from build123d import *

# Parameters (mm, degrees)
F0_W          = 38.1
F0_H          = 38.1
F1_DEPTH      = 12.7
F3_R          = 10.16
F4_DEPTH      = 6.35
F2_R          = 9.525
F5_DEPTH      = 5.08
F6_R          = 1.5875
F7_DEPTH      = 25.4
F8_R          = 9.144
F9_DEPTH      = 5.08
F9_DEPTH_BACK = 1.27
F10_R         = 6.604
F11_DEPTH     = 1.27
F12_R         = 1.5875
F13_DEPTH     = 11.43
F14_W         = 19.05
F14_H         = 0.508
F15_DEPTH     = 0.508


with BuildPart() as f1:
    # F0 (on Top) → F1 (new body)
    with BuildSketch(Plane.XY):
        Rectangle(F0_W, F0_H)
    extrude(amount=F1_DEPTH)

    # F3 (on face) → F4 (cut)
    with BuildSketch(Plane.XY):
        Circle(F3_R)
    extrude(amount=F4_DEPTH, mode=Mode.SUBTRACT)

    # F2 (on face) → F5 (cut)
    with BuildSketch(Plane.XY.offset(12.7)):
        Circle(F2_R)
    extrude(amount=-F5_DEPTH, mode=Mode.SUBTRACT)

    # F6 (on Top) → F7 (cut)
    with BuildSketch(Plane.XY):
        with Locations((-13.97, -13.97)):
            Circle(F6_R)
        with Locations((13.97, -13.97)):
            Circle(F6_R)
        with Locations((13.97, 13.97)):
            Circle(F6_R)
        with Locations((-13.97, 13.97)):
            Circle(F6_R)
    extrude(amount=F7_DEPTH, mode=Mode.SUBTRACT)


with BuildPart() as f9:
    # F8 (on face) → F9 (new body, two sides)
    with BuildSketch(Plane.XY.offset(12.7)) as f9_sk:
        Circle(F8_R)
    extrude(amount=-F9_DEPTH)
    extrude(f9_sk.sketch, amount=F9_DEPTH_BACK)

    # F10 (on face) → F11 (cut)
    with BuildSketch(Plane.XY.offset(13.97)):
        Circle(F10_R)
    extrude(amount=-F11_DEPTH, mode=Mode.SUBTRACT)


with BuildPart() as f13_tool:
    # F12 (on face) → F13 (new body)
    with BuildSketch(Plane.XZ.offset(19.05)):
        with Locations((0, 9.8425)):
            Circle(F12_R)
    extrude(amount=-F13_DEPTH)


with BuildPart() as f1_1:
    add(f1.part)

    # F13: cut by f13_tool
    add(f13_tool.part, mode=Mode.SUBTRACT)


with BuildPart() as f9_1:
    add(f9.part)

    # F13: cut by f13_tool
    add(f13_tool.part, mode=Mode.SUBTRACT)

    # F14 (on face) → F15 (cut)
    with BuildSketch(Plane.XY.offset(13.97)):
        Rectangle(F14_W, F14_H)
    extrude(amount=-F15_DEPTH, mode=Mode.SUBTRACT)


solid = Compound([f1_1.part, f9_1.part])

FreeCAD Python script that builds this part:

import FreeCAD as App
import Part
import Sketcher

V = App.Vector
Q = App.Units.Quantity

doc = App.newDocument("Part")
body = doc.addObject("PartDesign::Body", "Body")

# Sketch on XY plane
sketch1 = doc.addObject("Sketcher::SketchObject", "Sketch")
body.addObject(sketch1)
sketch1.AttachmentSupport = (doc.XY_Plane, [""])
sketch1.MapMode = "FlatFace"
sketch1.addGeometry(Part.LineSegment(V(-19, 19, 0), V(-19, -19, 0)), False)
sketch1.addGeometry(Part.LineSegment(V(-19, -19, 0), V(19, -19, 0)), False)
sketch1.addGeometry(Part.LineSegment(V(19, -19, 0), V(19, 19, 0)), False)
sketch1.addGeometry(Part.LineSegment(V(19, 19, 0), V(-19, 19, 0)), False)
sketch1.addConstraint(Sketcher.Constraint("Coincident", 0, 2, 1, 1))
sketch1.addConstraint(Sketcher.Constraint("Coincident", 1, 2, 2, 1))
sketch1.addConstraint(Sketcher.Constraint("Coincident", 2, 2, 3, 1))
sketch1.addConstraint(Sketcher.Constraint("Coincident", 3, 2, 0, 1))
sketch1.addConstraint(Sketcher.Constraint("Vertical", 0))
sketch1.addConstraint(Sketcher.Constraint("Horizontal", 1))
sketch1.addConstraint(Sketcher.Constraint("Vertical", 2))
sketch1.addConstraint(Sketcher.Constraint("Horizontal", 3))
sketch1.addConstraint(Sketcher.Constraint("Symmetric", 0, 2, 2, 2, -1, 1))
sketch1.addConstraint(Sketcher.Constraint("Equal", 3, 0))
sketch1.addConstraint(Sketcher.Constraint("DistanceX", 1, 1, 1, 2, Q("1.5 in")))
pad1 = doc.addObject("PartDesign::Pad", "Pad")
body.addObject(pad1)
pad1.Profile = sketch1
pad1.Length = Q("0.5 in")

# Sketch on XY plane
sketch2 = doc.addObject("Sketcher::SketchObject", "Sketch001")
body.addObject(sketch2)
sketch2.AttachmentSupport = (doc.XY_Plane, [""])
sketch2.MapMode = "FlatFace"
sketch2.addGeometry(Part.Circle(V(0, 0, 0), V(0, 0, 1), 10), False)
sketch2.addConstraint(Sketcher.Constraint("Coincident", 0, 3, -1, 1))
sketch2.addConstraint(Sketcher.Constraint("Diameter", 0, Q("0.8 in")))
pocket1 = doc.addObject("PartDesign::Pocket", "Pocket")
body.addObject(pocket1)
pocket1.Profile = sketch2
pocket1.Length = Q("0.25 in")
pocket1.Reversed = True

# Sketch on XY plane
sketch3 = doc.addObject("Sketcher::SketchObject", "Sketch002")
body.addObject(sketch3)
sketch3.AttachmentSupport = (doc.XY_Plane, [""])
sketch3.MapMode = "FlatFace"
sketch3.AttachmentOffset = App.Placement(V(0, 0, 0.5 * 25.4), App.Rotation())
sketch3.addGeometry(Part.Circle(V(0, 0, 0), V(0, 0, 1), 10), False)
sketch3.addConstraint(Sketcher.Constraint("Coincident", 0, 3, -1, 1))
sketch3.addConstraint(Sketcher.Constraint("Diameter", 0, Q("0.75 in")))
pocket2 = doc.addObject("PartDesign::Pocket", "Pocket001")
body.addObject(pocket2)
pocket2.Profile = sketch3
pocket2.Length = Q("0.2 in")

# Sketch on XY plane
sketch4 = doc.addObject("Sketcher::SketchObject", "Sketch003")
body.addObject(sketch4)
sketch4.AttachmentSupport = (doc.XY_Plane, [""])
sketch4.MapMode = "FlatFace"
sketch4.addGeometry(Part.Circle(V(-14, -14, 0), V(0, 0, 1), 1.6), False)
sketch4.addGeometry(Part.Circle(V(14, -14, 0), V(0, 0, 1), 1.6), False)
sketch4.addGeometry(Part.Circle(V(14, 14, 0), V(0, 0, 1), 1.6), False)
sketch4.addGeometry(Part.Circle(V(-14, 14, 0), V(0, 0, 1), 1.6), False)
sketch4.addConstraint(Sketcher.Constraint("Equal", 0, 1))
sketch4.addConstraint(Sketcher.Constraint("Equal", 1, 2))
sketch4.addConstraint(Sketcher.Constraint("Equal", 2, 3))
sketch4.addConstraint(Sketcher.Constraint("Symmetric", 0, 3, 2, 3, -1, 1))
sketch4.addConstraint(Sketcher.Constraint("Symmetric", 1, 3, 3, 3, -1, 1))
sketch4.addConstraint(Sketcher.Constraint("Symmetric", 0, 3, 1, 3, -2))
sketch4.addConstraint(Sketcher.Constraint("Diameter", 0, Q("0.125 in")))
sketch4.addConstraint(Sketcher.Constraint("DistanceX", 0, 3, 1, 3, Q("1.1 in")))
sketch4.addConstraint(Sketcher.Constraint("DistanceY", 1, 3, 2, 3, Q("1.1 in")))
pocket3 = doc.addObject("PartDesign::Pocket", "Pocket002")
body.addObject(pocket3)
pocket3.Profile = sketch4
pocket3.Length = Q("1 in")
pocket3.Reversed = True
body2 = doc.addObject("PartDesign::Body", "Body001")

# Sketch on XY plane
sketch5 = doc.addObject("Sketcher::SketchObject", "Sketch004")
body2.addObject(sketch5)
sketch5.AttachmentSupport = (doc.getObject("XY_Plane001"), [""])
sketch5.MapMode = "FlatFace"
sketch5.AttachmentOffset = App.Placement(V(0, 0, 0.5 * 25.4), App.Rotation())
sketch5.addGeometry(Part.Circle(V(0, 0, 0), V(0, 0, 1), 9), False)
sketch5.addConstraint(Sketcher.Constraint("Coincident", 0, 3, -1, 1))
sketch5.addConstraint(Sketcher.Constraint("Diameter", 0, Q("0.72 in")))
pad2 = doc.addObject("PartDesign::Pad", "Pad001")
body2.addObject(pad2)
pad2.Profile = sketch5
pad2.Type = "TwoLengths"
pad2.Length = Q("0.2 in")
pad2.Length2 = Q("0.05 in")
pad2.Reversed = True

# Sketch on XY plane
sketch6 = doc.addObject("Sketcher::SketchObject", "Sketch005")
body2.addObject(sketch6)
sketch6.AttachmentSupport = (doc.getObject("XY_Plane001"), [""])
sketch6.MapMode = "FlatFace"
sketch6.AttachmentOffset = App.Placement(V(0, 0, 0.55 * 25.4), App.Rotation())
sketch6.addGeometry(Part.Circle(V(0, 0, 0), V(0, 0, 1), 7), False)
sketch6.addConstraint(Sketcher.Constraint("Coincident", 0, 3, -1, 1))
sketch6.addConstraint(Sketcher.Constraint("Diameter", 0, Q("0.52 in")))
pocket4 = doc.addObject("PartDesign::Pocket", "Pocket003")
body2.addObject(pocket4)
pocket4.Profile = sketch6
pocket4.Length = Q("0.05 in")
body3 = doc.addObject("PartDesign::Body", "Body002")

# Sketch on XZ plane
sketch7 = doc.addObject("Sketcher::SketchObject", "Sketch006")
body3.addObject(sketch7)
sketch7.AttachmentSupport = (doc.getObject("XZ_Plane002"), [""])
sketch7.MapMode = "FlatFace"
sketch7.AttachmentOffset = App.Placement(V(0, 0, 0.75 * 25.4), App.Rotation())
sketch7.addGeometry(Part.Circle(V(0, 9.8, 0), V(0, 0, 1), 1.6), False)
sketch7.addConstraint(Sketcher.Constraint("PointOnObject", 0, 3, -2))
sketch7.addConstraint(Sketcher.Constraint("Diameter", 0, Q("0.125 in")))
sketch7.addConstraint(Sketcher.Constraint("DistanceY", -1, 1, 0, 3, Q("0.3875 in")))
pad3 = doc.addObject("PartDesign::Pad", "Pad002")
body3.addObject(pad3)
pad3.Profile = sketch7
pad3.Length = Q("0.45 in")
pad3.Reversed = True
doc.recompute()

body4 = doc.addObject("PartDesign::Body", "Body003")
body4.BaseFeature = body3
boolean = doc.addObject("PartDesign::Boolean", "Boolean")
body.addObject(boolean)
boolean.Type = "Cut"
boolean.addObjects([body4])
doc.recompute()

boolean2 = doc.addObject("PartDesign::Boolean", "Boolean001")
body2.addObject(boolean2)
boolean2.Type = "Cut"
boolean2.addObjects([body3])

# Sketch on XY plane
sketch8 = doc.addObject("Sketcher::SketchObject", "Sketch007")
body2.addObject(sketch8)
sketch8.AttachmentSupport = (doc.getObject("XY_Plane001"), [""])
sketch8.MapMode = "FlatFace"
sketch8.AttachmentOffset = App.Placement(V(0, 0, 0.55 * 25.4), App.Rotation())
sketch8.addGeometry(Part.LineSegment(V(-9.5, 0.3, 0), V(-9.5, -0.3, 0)), False)
sketch8.addGeometry(Part.LineSegment(V(-9.5, -0.3, 0), V(9.5, -0.3, 0)), False)
sketch8.addGeometry(Part.LineSegment(V(9.5, -0.3, 0), V(9.5, 0.3, 0)), False)
sketch8.addGeometry(Part.LineSegment(V(9.5, 0.3, 0), V(-9.5, 0.3, 0)), False)
sketch8.addConstraint(Sketcher.Constraint("Coincident", 0, 2, 1, 1))
sketch8.addConstraint(Sketcher.Constraint("Coincident", 1, 2, 2, 1))
sketch8.addConstraint(Sketcher.Constraint("Coincident", 2, 2, 3, 1))
sketch8.addConstraint(Sketcher.Constraint("Coincident", 3, 2, 0, 1))
sketch8.addConstraint(Sketcher.Constraint("Vertical", 0))
sketch8.addConstraint(Sketcher.Constraint("Horizontal", 1))
sketch8.addConstraint(Sketcher.Constraint("Vertical", 2))
sketch8.addConstraint(Sketcher.Constraint("Horizontal", 3))
sketch8.addConstraint(Sketcher.Constraint("Symmetric", 0, 2, 2, 2, -1, 1))
sketch8.addConstraint(Sketcher.Constraint("DistanceX", 1, 1, 1, 2, Q("0.75 in")))
sketch8.addConstraint(Sketcher.Constraint("DistanceY", 0, 2, 0, 1, Q("0.02 in")))
pocket5 = doc.addObject("PartDesign::Pocket", "Pocket004")
body2.addObject(pocket5)
pocket5.Profile = sketch8
pocket5.Length = Q("0.02 in")

doc.recompute()
